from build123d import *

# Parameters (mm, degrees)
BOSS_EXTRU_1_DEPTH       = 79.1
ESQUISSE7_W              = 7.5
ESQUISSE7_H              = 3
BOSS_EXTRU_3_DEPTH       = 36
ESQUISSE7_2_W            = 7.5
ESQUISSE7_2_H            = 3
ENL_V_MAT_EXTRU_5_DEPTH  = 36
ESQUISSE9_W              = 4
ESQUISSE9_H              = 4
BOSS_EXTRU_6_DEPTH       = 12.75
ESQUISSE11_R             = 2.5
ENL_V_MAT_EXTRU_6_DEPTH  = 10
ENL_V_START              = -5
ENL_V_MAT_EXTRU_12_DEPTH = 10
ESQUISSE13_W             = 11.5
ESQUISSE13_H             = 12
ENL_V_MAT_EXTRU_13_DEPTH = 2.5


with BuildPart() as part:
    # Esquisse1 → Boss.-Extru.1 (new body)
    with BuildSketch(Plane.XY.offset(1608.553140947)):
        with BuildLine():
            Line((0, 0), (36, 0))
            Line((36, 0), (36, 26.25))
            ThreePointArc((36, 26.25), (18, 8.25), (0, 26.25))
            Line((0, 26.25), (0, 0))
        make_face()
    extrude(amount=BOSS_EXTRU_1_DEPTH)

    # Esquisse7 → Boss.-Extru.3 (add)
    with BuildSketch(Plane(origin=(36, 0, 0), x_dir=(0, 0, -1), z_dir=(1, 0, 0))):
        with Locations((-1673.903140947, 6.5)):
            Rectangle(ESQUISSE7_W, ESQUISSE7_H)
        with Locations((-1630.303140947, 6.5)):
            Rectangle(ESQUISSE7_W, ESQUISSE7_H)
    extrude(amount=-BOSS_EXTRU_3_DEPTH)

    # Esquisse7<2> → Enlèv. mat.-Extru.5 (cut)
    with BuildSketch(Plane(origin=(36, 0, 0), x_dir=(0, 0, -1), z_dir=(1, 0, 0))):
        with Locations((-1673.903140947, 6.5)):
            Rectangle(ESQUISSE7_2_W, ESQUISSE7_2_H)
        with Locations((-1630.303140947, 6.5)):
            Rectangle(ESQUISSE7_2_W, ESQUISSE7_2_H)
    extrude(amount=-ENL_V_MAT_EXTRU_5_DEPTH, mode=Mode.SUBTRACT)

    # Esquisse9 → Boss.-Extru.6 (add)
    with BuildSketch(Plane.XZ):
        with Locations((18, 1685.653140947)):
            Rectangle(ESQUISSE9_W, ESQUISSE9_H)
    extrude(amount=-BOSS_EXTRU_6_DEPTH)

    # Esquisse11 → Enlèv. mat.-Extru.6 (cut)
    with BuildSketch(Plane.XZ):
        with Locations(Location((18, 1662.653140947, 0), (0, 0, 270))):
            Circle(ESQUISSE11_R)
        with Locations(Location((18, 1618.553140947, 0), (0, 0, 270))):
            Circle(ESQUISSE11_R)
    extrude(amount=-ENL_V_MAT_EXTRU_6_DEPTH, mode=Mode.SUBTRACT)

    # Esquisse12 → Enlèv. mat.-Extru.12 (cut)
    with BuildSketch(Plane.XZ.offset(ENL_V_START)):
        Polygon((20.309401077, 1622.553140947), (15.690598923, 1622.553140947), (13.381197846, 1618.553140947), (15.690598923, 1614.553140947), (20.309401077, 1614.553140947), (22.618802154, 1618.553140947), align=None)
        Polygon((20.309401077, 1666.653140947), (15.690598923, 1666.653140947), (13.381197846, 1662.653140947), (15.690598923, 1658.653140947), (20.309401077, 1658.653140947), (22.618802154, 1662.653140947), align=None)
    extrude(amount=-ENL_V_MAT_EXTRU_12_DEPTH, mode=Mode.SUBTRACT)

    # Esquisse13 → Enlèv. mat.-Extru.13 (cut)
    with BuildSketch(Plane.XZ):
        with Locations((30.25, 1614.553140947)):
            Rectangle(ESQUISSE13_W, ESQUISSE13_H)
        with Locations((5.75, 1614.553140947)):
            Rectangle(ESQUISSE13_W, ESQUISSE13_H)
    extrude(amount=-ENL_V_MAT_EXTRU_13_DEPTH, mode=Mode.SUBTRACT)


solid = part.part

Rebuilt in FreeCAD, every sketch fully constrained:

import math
import FreeCAD as App
import Part
import Sketcher
from FreeCAD import Vector
Q = App.Units.Quantity

doc = App.newDocument("Part")
body = doc.addObject("PartDesign::Body", "Body")

sketch1 = body.newObject("Sketcher::SketchObject", "Sketch")
sketch1.AttachmentSupport = (doc.getObject("XY_Plane"), [""])
sketch1.MapMode = "FlatFace"
sketch1.AttachmentOffset = App.Placement(Vector(0, 0, 1608.553141), App.Rotation())
sketch1.addGeometry(Part.LineSegment(Vector(0, 0, 0), Vector(36, 0, 0)), False)
sketch1.addGeometry(Part.LineSegment(Vector(36, 0, 0), Vector(36, 26, 0)), False)
sketch1.addGeometry(Part.ArcOfCircle(Part.Circle(Vector(18, 26, 0), Vector(0, 0, 1), 18), math.radians(180), math.radians(360)), False)
sketch1.addGeometry(Part.LineSegment(Vector(0, 26, 0), Vector(0, 0, 0)), False)
sketch1.addConstraint(Sketcher.Constraint("Coincident", 0, 2, 1, 1))
sketch1.addConstraint(Sketcher.Constraint("Tangent", 1, 2, 2, 2))
sketch1.addConstraint(Sketcher.Constraint("Tangent", 2, 1, 3, 1))
sketch1.addConstraint(Sketcher.Constraint("Coincident", 3, 2, 0, 1))
sketch1.addConstraint(Sketcher.Constraint("Horizontal", 0))
sketch1.addConstraint(Sketcher.Constraint("Vertical", 1))
sketch1.addConstraint(Sketcher.Constraint("Vertical", 3))
sketch1.addConstraint(Sketcher.Constraint("Coincident", 3, 2, -1, 1))
sketch1.addConstraint(Sketcher.Constraint("Radius", 2, 18.0))
sketch1.addConstraint(Sketcher.Constraint("DistanceY", 1, 1, 1, 2, 26.25))
pad1 = body.newObject("PartDesign::Pad", "Pad")
pad1.Profile = sketch1
pad1.Length = 79.1

sketch2 = body.newObject("Sketcher::SketchObject", "Sketch001")
sketch2.AttachmentSupport = (doc.getObject("YZ_Plane"), [""])
sketch2.MapMode = "FlatFace"
sketch2.AttachmentOffset = App.Placement(Vector(0, 0, 36), App.Rotation())
sketch2.addGeometry(Part.LineSegment(Vector(8, 1677.7, 0), Vector(5, 1677.7, 0)), False)
sketch2.addGeometry(Part.LineSegment(Vector(5, 1677.7, 0), Vector(5, 1670.2, 0)), False)
sketch2.addGeometry(Part.LineSegment(Vector(5, 1670.2, 0), Vector(8, 1670.2, 0)), False)
sketch2.addGeometry(Part.LineSegment(Vector(8, 1670.2, 0), Vector(8, 1677.7, 0)), False)
sketch2.addGeometry(Part.LineSegment(Vector(8, 1634.1, 0), Vector(5, 1634.1, 0)), False)
sketch2.addGeometry(Part.LineSegment(Vector(5, 1634.1, 0), Vector(5, 1626.6, 0)), False)
sketch2.addGeometry(Part.LineSegment(Vector(5, 1626.6, 0), Vector(8, 1626.6, 0)), False)
sketch2.addGeometry(Part.LineSegment(Vector(8, 1626.6, 0), Vector(8, 1634.1, 0)), False)
sketch2.addConstraint(Sketcher.Constraint("Coincident", 0, 2, 1, 1))
sketch2.addConstraint(Sketcher.Constraint("Coincident", 1, 2, 2, 1))
sketch2.addConstraint(Sketcher.Constraint("Coincident", 2, 2, 3, 1))
sketch2.addConstraint(Sketcher.Constraint("Coincident", 3, 2, 0, 1))
sketch2.addConstraint(Sketcher.Constraint("Coincident", 4, 2, 5, 1))
sketch2.addConstraint(Sketcher.Constraint("Coincident", 5, 2, 6, 1))
sketch2.addConstraint(Sketcher.Constraint("Coincident", 6, 2, 7, 1))
sketch2.addConstraint(Sketcher.Constraint("Coincident", 7, 2, 4, 1))
sketch2.addConstraint(Sketcher.Constraint("Horizontal", 0))
sketch2.addConstraint(Sketcher.Constraint("Vertical", 1))
sketch2.addConstraint(Sketcher.Constraint("Horizontal", 2))
sketch2.addConstraint(Sketcher.Constraint("Vertical", 3))
sketch2.addConstraint(Sketcher.Constraint("Horizontal", 4))
sketch2.addConstraint(Sketcher.Constraint("Vertical", 5))
sketch2.addConstraint(Sketcher.Constraint("Horizontal", 6))
sketch2.addConstraint(Sketcher.Constraint("Vertical", 7))
sketch2.addConstraint(Sketcher.Constraint("Vertical", 1, 2, 4, 2))
sketch2.addConstraint(Sketcher.Constraint("Vertical", 3, 2, 6, 2))
sketch2.addConstraint(Sketcher.Constraint("Equal", 3, 5))
sketch2.addConstraint(Sketcher.Constraint("DistanceX", 0, 2, 0, 1, 3.0))
sketch2.addConstraint(Sketcher.Constraint("DistanceY", 1, 2, 1, 1, 7.5))
sketch2.addConstraint(Sketcher.Constraint("DistanceX", -1, 1, 0, 2, 5.0))
sketch2.addConstraint(Sketcher.Constraint("DistanceY", 4, 2, 1, 2, 36.1))
sketch2.addConstraint(Sketcher.Constraint("DistanceY", -1, 1, 0, 2, 1677.653141))
pad2 = body.newObject("PartDesign::Pad", "Pad001")
pad2.Profile = sketch2
pad2.Length = 36
pad2.Reversed = True

sketch3 = body.newObject("Sketcher::SketchObject", "Sketch002")
sketch3.AttachmentSupport = (doc.getObject("YZ_Plane"), [""])
sketch3.MapMode = "FlatFace"
sketch3.AttachmentOffset = App.Placement(Vector(0, 0, 36), App.Rotation())
sketch3.addGeometry(Part.LineSegment(Vector(8, 1677.7, 0), Vector(5, 1677.7, 0)), False)
sketch3.addGeometry(Part.LineSegment(Vector(5, 1677.7, 0), Vector(5, 1670.2, 0)), False)
sketch3.addGeometry(Part.LineSegment(Vector(5, 1670.2, 0), Vector(8, 1670.2, 0)), False)
sketch3.addGeometry(Part.LineSegment(Vector(8, 1670.2, 0), Vector(8, 1677.7, 0)), False)
sketch3.addGeometry(Part.LineSegment(Vector(8, 1634.1, 0), Vector(5, 1634.1, 0)), False)
sketch3.addGeometry(Part.LineSegment(Vector(5, 1634.1, 0), Vector(5, 1626.6, 0)), False)
sketch3.addGeometry(Part.LineSegment(Vector(5, 1626.6, 0), Vector(8, 1626.6, 0)), False)
sketch3.addGeometry(Part.LineSegment(Vector(8, 1626.6, 0), Vector(8, 1634.1, 0)), False)
sketch3.addConstraint(Sketcher.Constraint("Coincident", 0, 2, 1, 1))
sketch3.addConstraint(Sketcher.Constraint("Coincident", 1, 2, 2, 1))
sketch3.addConstraint(Sketcher.Constraint("Coincident", 2, 2, 3, 1))
sketch3.addConstraint(Sketcher.Constraint("Coincident", 3, 2, 0, 1))
sketch3.addConstraint(Sketcher.Constraint("Coincident", 4, 2, 5, 1))
sketch3.addConstraint(Sketcher.Constraint("Coincident", 5, 2, 6, 1))
sketch3.addConstraint(Sketcher.Constraint("Coincident", 6, 2, 7, 1))
sketch3.addConstraint(Sketcher.Constraint("Coincident", 7, 2, 4, 1))
sketch3.addConstraint(Sketcher.Constraint("Horizontal", 0))
sketch3.addConstraint(Sketcher.Constraint("Vertical", 1))
sketch3.addConstraint(Sketcher.Constraint("Horizontal", 2))
sketch3.addConstraint(Sketcher.Constraint("Vertical", 3))
sketch3.addConstraint(Sketcher.Constraint("Horizontal", 4))
sketch3.addConstraint(Sketcher.Constraint("Vertical", 5))
sketch3.addConstraint(Sketcher.Constraint("Horizontal", 6))
sketch3.addConstraint(Sketcher.Constraint("Vertical", 7))
sketch3.addConstraint(Sketcher.Constraint("Vertical", 1, 2, 4, 2))
sketch3.addConstraint(Sketcher.Constraint("Vertical", 3, 2, 6, 2))
sketch3.addConstraint(Sketcher.Constraint("Equal", 3, 5))
sketch3.addConstraint(Sketcher.Constraint("DistanceX", 0, 2, 0, 1, 3.0))
sketch3.addConstraint(Sketcher.Constraint("DistanceY", 1, 2, 1, 1, 7.5))
sketch3.addConstraint(Sketcher.Constraint("DistanceX", -1, 1, 0, 2, 5.0))
sketch3.addConstraint(Sketcher.Constraint("DistanceY", 4, 2, 1, 2, 36.1))
sketch3.addConstraint(Sketcher.Constraint("DistanceY", -1, 1, 0, 2, 1677.653141))
pocket1 = body.newObject("PartDesign::Pocket", "Pocket")
pocket1.Profile = sketch3
pocket1.Length = 36

sketch4 = body.newObject("Sketcher::SketchObject", "Sketch003")
sketch4.AttachmentSupport = (doc.getObject("XZ_Plane"), [""])
sketch4.MapMode = "FlatFace"
sketch4.addGeometry(Part.LineSegment(Vector(16, 1687.7, 0), Vector(16, 1683.7, 0)), False)
sketch4.addGeometry(Part.LineSegment(Vector(16, 1683.7, 0), Vector(20, 1683.7, 0)), False)
sketch4.addGeometry(Part.LineSegment(Vector(20, 1683.7, 0), Vector(20, 1687.7, 0)), False)
sketch4.addGeometry(Part.LineSegment(Vector(20, 1687.7, 0), Vector(16, 1687.7, 0)), False)
sketch4.addConstraint(Sketcher.Constraint("Coincident", 0, 2, 1, 1))
sketch4.addConstraint(Sketcher.Constraint("Coincident", 1, 2, 2, 1))
sketch4.addConstraint(Sketcher.Constraint("Coincident", 2, 2, 3, 1))
sketch4.addConstraint(Sketcher.Constraint("Coincident", 3, 2, 0, 1))
sketch4.addConstraint(Sketcher.Constraint("Vertical", 0))
sketch4.addConstraint(Sketcher.Constraint("Horizontal", 1))
sketch4.addConstraint(Sketcher.Constraint("Vertical", 2))
sketch4.addConstraint(Sketcher.Constraint("Horizontal", 3))
sketch4.addConstraint(Sketcher.Constraint("Equal", 3, 0))
sketch4.addConstraint(Sketcher.Constraint("DistanceX", 1, 1, 1, 2, 4.0))
sketch4.addConstraint(Sketcher.Constraint("DistanceX", -1, 1, 0, 2, 16.0))
sketch4.addConstraint(Sketcher.Constraint("DistanceY", -1, 1, 0, 2, 1683.653141))
pad3 = body.newObject("PartDesign::Pad", "Pad002")
pad3.Profile = sketch4
pad3.Length = 12.75
pad3.Reversed = True

sketch5 = body.newObject("Sketcher::SketchObject", "Sketch004")
sketch5.AttachmentSupport = (doc.getObject("XZ_Plane"), [""])
sketch5.MapMode = "FlatFace"
sketch5.addGeometry(Part.Circle(Vector(18, 1662.7, 0), Vector(0, 0, 1), 2.5), False)
sketch5.addGeometry(Part.Circle(Vector(18, 1618.6, 0), Vector(0, 0, 1), 2.5), False)
sketch5.addConstraint(Sketcher.Constraint("Equal", 0, 1))
sketch5.addConstraint(Sketcher.Constraint("Vertical", 0, 3, 1, 3))
sketch5.addConstraint(Sketcher.Constraint("Diameter", 0, 5.0))
sketch5.addConstraint(Sketcher.Constraint("DistanceX", -1, 1, 0, 3, 18.0))
sketch5.addConstraint(Sketcher.Constraint("DistanceY", 1, 3, 0, 3, 44.1))
sketch5.addConstraint(Sketcher.Constraint("DistanceY", -1, 1, 0, 3, 1662.653141))
pocket2 = body.newObject("PartDesign::Pocket", "Pocket001")
pocket2.Profile = sketch5
pocket2.Length = 10

sketch6 = body.newObject("Sketcher::SketchObject", "Sketch005")
sketch6.AttachmentSupport = (doc.getObject("XZ_Plane"), [""])
sketch6.MapMode = "FlatFace"
sketch6.AttachmentOffset = App.Placement(Vector(0, 0, -5), App.Rotation())
sketch6.addGeometry(Part.LineSegment(Vector(20.3, 1622.6, 0), Vector(15.7, 1622.6, 0)), False)
sketch6.addGeometry(Part.LineSegment(Vector(15.7, 1622.6, 0), Vector(13.4, 1618.6, 0)), False)
sketch6.addGeometry(Part.LineSegment(Vector(13.4, 1618.6, 0), Vector(15.7, 1614.6, 0)), False)
sketch6.addGeometry(Part.LineSegment(Vector(15.7, 1614.6, 0), Vector(20.3, 1614.6, 0)), False)
sketch6.addGeometry(Part.LineSegment(Vector(20.3, 1614.6, 0), Vector(22.6, 1618.6, 0)), False)
sketch6.addGeometry(Part.LineSegment(Vector(22.6, 1618.6, 0), Vector(20.3, 1622.6, 0)), False)
sketch6.addGeometry(Part.LineSegment(Vector(20.3, 1666.7, 0), Vector(15.7, 1666.7, 0)), False)
sketch6.addGeometry(Part.LineSegment(Vector(15.7, 1666.7, 0), Vector(13.4, 1662.7, 0)), False)
sketch6.addGeometry(Part.LineSegment(Vector(13.4, 1662.7, 0), Vector(15.7, 1658.7, 0)), False)
sketch6.addGeometry(Part.LineSegment(Vector(15.7, 1658.7, 0), Vector(20.3, 1658.7, 0)), False)
sketch6.addGeometry(Part.LineSegment(Vector(20.3, 1658.7, 0), Vector(22.6, 1662.7, 0)), False)
sketch6.addGeometry(Part.LineSegment(Vector(22.6, 1662.7, 0), Vector(20.3, 1666.7, 0)), False)
sketch6.addConstraint(Sketcher.Constraint("Coincident", 0, 2, 1, 1))
sketch6.addConstraint(Sketcher.Constraint("Coincident", 1, 2, 2, 1))
sketch6.addConstraint(Sketcher.Constraint("Coincident", 2, 2, 3, 1))
sketch6.addConstraint(Sketcher.Constraint("Coincident", 3, 2, 4, 1))
sketch6.addConstraint(Sketcher.Constraint("Coincident", 4, 2, 5, 1))
sketch6.addConstraint(Sketcher.Constraint("Coincident", 5, 2, 0, 1))
sketch6.addConstraint(Sketcher.Constraint("Coincident", 6, 2, 7, 1))
sketch6.addConstraint(Sketcher.Constraint("Coincident", 7, 2, 8, 1))
sketch6.addConstraint(Sketcher.Constraint("Coincident", 8, 2, 9, 1))
sketch6.addConstraint(Sketcher.Constraint("Coincident", 9, 2, 10, 1))
sketch6.addConstraint(Sketcher.Constraint("Coincident", 10, 2, 11, 1))
sketch6.addConstraint(Sketcher.Constraint("Coincident", 11, 2, 6, 1))
sketch6.addConstraint(Sketcher.Constraint("Horizontal", 0))
sketch6.addConstraint(Sketcher.Constraint("Horizontal", 3))
sketch6.addConstraint(Sketcher.Constraint("Horizontal", 6))
sketch6.addConstraint(Sketcher.Constraint("Horizontal", 9))
sketch6.addConstraint(Sketcher.Constraint("Parallel", 1, 4))
sketch6.addConstraint(Sketcher.Constraint("Parallel", 2, 5))
sketch6.addConstraint(Sketcher.Constraint("Parallel", 4, 7))
sketch6.addConstraint(Sketcher.Constraint("Parallel", 5, 8))
sketch6.addConstraint(Sketcher.Constraint("Parallel", 7, 10))
sketch6.addConstraint(Sketcher.Constraint("Parallel", 8, 11))
sketch6.addConstraint(Sketcher.Constraint("Horizontal", 1, 2, 4, 2))
sketch6.addConstraint(Sketcher.Constraint("Horizontal", 7, 2, 10, 2))
sketch6.addConstraint(Sketcher.Constraint("Vertical", 0, 2, 2, 2))
sketch6.addConstraint(Sketcher.Constraint("Vertical", 3, 2, 5, 2))
sketch6.addConstraint(Sketcher.Constraint("Vertical", 2, 2, 6, 2))
sketch6.addConstraint(Sketcher.Constraint("Vertical", 1, 2, 7, 2))
sketch6.addConstraint(Sketcher.Constraint("Vertical", 6, 2, 8, 2))
sketch6.addConstraint(Sketcher.Constraint("Vertical", 5, 2, 9, 2))
sketch6.addConstraint(Sketcher.Constraint("Angle", 1, Q("-120 deg")))
sketch6.addConstraint(Sketcher.Constraint("DistanceY", 1, 2, 0, 2, 4.0))
sketch6.addConstraint(Sketcher.Constraint("DistanceY", 0, 2, 6, 2, 44.1))
sketch6.addConstraint(Sketcher.Constraint("DistanceX", -1, 1, 0, 2, 15.690599))
sketch6.addConstraint(Sketcher.Constraint("DistanceX", -1, 1, 3, 2, 20.309401))
sketch6.addConstraint(Sketcher.Constraint("DistanceY", -1, 1, 0, 2, 1622.553141))
pocket3 = body.newObject("PartDesign::Pocket", "Pocket002")
pocket3.Profile = sketch6
pocket3.Length = 10

sketch7 = body.newObject("Sketcher::SketchObject", "Sketch006")
sketch7.AttachmentSupport = (doc.getObject("XZ_Plane"), [""])
sketch7.MapMode = "FlatFace"
sketch7.addGeometry(Part.LineSegment(Vector(24, 1621, 0), Vector(24, 1609, 0)), False)
sketch7.addGeometry(Part.LineSegment(Vector(24, 1609, 0), Vector(36, 1609, 0)), False)
sketch7.addGeometry(Part.LineSegment(Vector(36, 1609, 0), Vector(36, 1621, 0)), False)
sketch7.addGeometry(Part.LineSegment(Vector(36, 1621, 0), Vector(24, 1621, 0)), False)
sketch7.addGeometry(Part.LineSegment(Vector(0, 1621, 0), Vector(0, 1609, 0)), False)
sketch7.addGeometry(Part.LineSegment(Vector(0, 1609, 0), Vector(12, 1609, 0)), False)
sketch7.addGeometry(Part.LineSegment(Vector(12, 1609, 0), Vector(12, 1621, 0)), False)
sketch7.addGeometry(Part.LineSegment(Vector(12, 1621, 0), Vector(0, 1621, 0)), False)
sketch7.addConstraint(Sketcher.Constraint("Coincident", 0, 2, 1, 1))
sketch7.addConstraint(Sketcher.Constraint("Coincident", 1, 2, 2, 1))
sketch7.addConstraint(Sketcher.Constraint("Coincident", 2, 2, 3, 1))
sketch7.addConstraint(Sketcher.Constraint("Coincident", 3, 2, 0, 1))
sketch7.addConstraint(Sketcher.Constraint("Coincident", 4, 2, 5, 1))
sketch7.addConstraint(Sketcher.Constraint("Coincident", 5, 2, 6, 1))
sketch7.addConstraint(Sketcher.Constraint("Coincident", 6, 2, 7, 1))
sketch7.addConstraint(Sketcher.Constraint("Coincident", 7, 2, 4, 1))
sketch7.addConstraint(Sketcher.Constraint("Vertical", 0))
sketch7.addConstraint(Sketcher.Constraint("Horizontal", 1))
sketch7.addConstraint(Sketcher.Constraint("Vertical", 2))
sketch7.addConstraint(Sketcher.Constraint("Horizontal", 3))
sketch7.addConstraint(Sketcher.Constraint("Vertical", 4))
sketch7.addConstraint(Sketcher.Constraint("Horizontal", 5))
sketch7.addConstraint(Sketcher.Constraint("Vertical", 6))
sketch7.addConstraint(Sketcher.Constraint("Horizontal", 7))
sketch7.addConstraint(Sketcher.Constraint("PointOnObject", 4, 2, -2))
sketch7.addConstraint(Sketcher.Constraint("Horizontal", 1, 2, 4, 2))
sketch7.addConstraint(Sketcher.Constraint("Horizontal", 3, 2, 6, 2))
sketch7.addConstraint(Sketcher.Constraint("Equal", 3, 5))
sketch7.addConstraint(Sketcher.Constraint("DistanceY", 0, 2, 0, 1, 12.0))
sketch7.addConstraint(Sketcher.Constraint("DistanceX", 1, 1, 1, 2, 11.5))
sketch7.addConstraint(Sketcher.Constraint("DistanceX", -1, 1, 1, 2, 36.0))
sketch7.addConstraint(Sketcher.Constraint("DistanceY", -1, 1, 0, 2, 1608.553141))
pocket4 = body.newObject("PartDesign::Pocket", "Pocket003")
pocket4.Profile = sketch7
pocket4.Length = 2.5

doc.recompute()
